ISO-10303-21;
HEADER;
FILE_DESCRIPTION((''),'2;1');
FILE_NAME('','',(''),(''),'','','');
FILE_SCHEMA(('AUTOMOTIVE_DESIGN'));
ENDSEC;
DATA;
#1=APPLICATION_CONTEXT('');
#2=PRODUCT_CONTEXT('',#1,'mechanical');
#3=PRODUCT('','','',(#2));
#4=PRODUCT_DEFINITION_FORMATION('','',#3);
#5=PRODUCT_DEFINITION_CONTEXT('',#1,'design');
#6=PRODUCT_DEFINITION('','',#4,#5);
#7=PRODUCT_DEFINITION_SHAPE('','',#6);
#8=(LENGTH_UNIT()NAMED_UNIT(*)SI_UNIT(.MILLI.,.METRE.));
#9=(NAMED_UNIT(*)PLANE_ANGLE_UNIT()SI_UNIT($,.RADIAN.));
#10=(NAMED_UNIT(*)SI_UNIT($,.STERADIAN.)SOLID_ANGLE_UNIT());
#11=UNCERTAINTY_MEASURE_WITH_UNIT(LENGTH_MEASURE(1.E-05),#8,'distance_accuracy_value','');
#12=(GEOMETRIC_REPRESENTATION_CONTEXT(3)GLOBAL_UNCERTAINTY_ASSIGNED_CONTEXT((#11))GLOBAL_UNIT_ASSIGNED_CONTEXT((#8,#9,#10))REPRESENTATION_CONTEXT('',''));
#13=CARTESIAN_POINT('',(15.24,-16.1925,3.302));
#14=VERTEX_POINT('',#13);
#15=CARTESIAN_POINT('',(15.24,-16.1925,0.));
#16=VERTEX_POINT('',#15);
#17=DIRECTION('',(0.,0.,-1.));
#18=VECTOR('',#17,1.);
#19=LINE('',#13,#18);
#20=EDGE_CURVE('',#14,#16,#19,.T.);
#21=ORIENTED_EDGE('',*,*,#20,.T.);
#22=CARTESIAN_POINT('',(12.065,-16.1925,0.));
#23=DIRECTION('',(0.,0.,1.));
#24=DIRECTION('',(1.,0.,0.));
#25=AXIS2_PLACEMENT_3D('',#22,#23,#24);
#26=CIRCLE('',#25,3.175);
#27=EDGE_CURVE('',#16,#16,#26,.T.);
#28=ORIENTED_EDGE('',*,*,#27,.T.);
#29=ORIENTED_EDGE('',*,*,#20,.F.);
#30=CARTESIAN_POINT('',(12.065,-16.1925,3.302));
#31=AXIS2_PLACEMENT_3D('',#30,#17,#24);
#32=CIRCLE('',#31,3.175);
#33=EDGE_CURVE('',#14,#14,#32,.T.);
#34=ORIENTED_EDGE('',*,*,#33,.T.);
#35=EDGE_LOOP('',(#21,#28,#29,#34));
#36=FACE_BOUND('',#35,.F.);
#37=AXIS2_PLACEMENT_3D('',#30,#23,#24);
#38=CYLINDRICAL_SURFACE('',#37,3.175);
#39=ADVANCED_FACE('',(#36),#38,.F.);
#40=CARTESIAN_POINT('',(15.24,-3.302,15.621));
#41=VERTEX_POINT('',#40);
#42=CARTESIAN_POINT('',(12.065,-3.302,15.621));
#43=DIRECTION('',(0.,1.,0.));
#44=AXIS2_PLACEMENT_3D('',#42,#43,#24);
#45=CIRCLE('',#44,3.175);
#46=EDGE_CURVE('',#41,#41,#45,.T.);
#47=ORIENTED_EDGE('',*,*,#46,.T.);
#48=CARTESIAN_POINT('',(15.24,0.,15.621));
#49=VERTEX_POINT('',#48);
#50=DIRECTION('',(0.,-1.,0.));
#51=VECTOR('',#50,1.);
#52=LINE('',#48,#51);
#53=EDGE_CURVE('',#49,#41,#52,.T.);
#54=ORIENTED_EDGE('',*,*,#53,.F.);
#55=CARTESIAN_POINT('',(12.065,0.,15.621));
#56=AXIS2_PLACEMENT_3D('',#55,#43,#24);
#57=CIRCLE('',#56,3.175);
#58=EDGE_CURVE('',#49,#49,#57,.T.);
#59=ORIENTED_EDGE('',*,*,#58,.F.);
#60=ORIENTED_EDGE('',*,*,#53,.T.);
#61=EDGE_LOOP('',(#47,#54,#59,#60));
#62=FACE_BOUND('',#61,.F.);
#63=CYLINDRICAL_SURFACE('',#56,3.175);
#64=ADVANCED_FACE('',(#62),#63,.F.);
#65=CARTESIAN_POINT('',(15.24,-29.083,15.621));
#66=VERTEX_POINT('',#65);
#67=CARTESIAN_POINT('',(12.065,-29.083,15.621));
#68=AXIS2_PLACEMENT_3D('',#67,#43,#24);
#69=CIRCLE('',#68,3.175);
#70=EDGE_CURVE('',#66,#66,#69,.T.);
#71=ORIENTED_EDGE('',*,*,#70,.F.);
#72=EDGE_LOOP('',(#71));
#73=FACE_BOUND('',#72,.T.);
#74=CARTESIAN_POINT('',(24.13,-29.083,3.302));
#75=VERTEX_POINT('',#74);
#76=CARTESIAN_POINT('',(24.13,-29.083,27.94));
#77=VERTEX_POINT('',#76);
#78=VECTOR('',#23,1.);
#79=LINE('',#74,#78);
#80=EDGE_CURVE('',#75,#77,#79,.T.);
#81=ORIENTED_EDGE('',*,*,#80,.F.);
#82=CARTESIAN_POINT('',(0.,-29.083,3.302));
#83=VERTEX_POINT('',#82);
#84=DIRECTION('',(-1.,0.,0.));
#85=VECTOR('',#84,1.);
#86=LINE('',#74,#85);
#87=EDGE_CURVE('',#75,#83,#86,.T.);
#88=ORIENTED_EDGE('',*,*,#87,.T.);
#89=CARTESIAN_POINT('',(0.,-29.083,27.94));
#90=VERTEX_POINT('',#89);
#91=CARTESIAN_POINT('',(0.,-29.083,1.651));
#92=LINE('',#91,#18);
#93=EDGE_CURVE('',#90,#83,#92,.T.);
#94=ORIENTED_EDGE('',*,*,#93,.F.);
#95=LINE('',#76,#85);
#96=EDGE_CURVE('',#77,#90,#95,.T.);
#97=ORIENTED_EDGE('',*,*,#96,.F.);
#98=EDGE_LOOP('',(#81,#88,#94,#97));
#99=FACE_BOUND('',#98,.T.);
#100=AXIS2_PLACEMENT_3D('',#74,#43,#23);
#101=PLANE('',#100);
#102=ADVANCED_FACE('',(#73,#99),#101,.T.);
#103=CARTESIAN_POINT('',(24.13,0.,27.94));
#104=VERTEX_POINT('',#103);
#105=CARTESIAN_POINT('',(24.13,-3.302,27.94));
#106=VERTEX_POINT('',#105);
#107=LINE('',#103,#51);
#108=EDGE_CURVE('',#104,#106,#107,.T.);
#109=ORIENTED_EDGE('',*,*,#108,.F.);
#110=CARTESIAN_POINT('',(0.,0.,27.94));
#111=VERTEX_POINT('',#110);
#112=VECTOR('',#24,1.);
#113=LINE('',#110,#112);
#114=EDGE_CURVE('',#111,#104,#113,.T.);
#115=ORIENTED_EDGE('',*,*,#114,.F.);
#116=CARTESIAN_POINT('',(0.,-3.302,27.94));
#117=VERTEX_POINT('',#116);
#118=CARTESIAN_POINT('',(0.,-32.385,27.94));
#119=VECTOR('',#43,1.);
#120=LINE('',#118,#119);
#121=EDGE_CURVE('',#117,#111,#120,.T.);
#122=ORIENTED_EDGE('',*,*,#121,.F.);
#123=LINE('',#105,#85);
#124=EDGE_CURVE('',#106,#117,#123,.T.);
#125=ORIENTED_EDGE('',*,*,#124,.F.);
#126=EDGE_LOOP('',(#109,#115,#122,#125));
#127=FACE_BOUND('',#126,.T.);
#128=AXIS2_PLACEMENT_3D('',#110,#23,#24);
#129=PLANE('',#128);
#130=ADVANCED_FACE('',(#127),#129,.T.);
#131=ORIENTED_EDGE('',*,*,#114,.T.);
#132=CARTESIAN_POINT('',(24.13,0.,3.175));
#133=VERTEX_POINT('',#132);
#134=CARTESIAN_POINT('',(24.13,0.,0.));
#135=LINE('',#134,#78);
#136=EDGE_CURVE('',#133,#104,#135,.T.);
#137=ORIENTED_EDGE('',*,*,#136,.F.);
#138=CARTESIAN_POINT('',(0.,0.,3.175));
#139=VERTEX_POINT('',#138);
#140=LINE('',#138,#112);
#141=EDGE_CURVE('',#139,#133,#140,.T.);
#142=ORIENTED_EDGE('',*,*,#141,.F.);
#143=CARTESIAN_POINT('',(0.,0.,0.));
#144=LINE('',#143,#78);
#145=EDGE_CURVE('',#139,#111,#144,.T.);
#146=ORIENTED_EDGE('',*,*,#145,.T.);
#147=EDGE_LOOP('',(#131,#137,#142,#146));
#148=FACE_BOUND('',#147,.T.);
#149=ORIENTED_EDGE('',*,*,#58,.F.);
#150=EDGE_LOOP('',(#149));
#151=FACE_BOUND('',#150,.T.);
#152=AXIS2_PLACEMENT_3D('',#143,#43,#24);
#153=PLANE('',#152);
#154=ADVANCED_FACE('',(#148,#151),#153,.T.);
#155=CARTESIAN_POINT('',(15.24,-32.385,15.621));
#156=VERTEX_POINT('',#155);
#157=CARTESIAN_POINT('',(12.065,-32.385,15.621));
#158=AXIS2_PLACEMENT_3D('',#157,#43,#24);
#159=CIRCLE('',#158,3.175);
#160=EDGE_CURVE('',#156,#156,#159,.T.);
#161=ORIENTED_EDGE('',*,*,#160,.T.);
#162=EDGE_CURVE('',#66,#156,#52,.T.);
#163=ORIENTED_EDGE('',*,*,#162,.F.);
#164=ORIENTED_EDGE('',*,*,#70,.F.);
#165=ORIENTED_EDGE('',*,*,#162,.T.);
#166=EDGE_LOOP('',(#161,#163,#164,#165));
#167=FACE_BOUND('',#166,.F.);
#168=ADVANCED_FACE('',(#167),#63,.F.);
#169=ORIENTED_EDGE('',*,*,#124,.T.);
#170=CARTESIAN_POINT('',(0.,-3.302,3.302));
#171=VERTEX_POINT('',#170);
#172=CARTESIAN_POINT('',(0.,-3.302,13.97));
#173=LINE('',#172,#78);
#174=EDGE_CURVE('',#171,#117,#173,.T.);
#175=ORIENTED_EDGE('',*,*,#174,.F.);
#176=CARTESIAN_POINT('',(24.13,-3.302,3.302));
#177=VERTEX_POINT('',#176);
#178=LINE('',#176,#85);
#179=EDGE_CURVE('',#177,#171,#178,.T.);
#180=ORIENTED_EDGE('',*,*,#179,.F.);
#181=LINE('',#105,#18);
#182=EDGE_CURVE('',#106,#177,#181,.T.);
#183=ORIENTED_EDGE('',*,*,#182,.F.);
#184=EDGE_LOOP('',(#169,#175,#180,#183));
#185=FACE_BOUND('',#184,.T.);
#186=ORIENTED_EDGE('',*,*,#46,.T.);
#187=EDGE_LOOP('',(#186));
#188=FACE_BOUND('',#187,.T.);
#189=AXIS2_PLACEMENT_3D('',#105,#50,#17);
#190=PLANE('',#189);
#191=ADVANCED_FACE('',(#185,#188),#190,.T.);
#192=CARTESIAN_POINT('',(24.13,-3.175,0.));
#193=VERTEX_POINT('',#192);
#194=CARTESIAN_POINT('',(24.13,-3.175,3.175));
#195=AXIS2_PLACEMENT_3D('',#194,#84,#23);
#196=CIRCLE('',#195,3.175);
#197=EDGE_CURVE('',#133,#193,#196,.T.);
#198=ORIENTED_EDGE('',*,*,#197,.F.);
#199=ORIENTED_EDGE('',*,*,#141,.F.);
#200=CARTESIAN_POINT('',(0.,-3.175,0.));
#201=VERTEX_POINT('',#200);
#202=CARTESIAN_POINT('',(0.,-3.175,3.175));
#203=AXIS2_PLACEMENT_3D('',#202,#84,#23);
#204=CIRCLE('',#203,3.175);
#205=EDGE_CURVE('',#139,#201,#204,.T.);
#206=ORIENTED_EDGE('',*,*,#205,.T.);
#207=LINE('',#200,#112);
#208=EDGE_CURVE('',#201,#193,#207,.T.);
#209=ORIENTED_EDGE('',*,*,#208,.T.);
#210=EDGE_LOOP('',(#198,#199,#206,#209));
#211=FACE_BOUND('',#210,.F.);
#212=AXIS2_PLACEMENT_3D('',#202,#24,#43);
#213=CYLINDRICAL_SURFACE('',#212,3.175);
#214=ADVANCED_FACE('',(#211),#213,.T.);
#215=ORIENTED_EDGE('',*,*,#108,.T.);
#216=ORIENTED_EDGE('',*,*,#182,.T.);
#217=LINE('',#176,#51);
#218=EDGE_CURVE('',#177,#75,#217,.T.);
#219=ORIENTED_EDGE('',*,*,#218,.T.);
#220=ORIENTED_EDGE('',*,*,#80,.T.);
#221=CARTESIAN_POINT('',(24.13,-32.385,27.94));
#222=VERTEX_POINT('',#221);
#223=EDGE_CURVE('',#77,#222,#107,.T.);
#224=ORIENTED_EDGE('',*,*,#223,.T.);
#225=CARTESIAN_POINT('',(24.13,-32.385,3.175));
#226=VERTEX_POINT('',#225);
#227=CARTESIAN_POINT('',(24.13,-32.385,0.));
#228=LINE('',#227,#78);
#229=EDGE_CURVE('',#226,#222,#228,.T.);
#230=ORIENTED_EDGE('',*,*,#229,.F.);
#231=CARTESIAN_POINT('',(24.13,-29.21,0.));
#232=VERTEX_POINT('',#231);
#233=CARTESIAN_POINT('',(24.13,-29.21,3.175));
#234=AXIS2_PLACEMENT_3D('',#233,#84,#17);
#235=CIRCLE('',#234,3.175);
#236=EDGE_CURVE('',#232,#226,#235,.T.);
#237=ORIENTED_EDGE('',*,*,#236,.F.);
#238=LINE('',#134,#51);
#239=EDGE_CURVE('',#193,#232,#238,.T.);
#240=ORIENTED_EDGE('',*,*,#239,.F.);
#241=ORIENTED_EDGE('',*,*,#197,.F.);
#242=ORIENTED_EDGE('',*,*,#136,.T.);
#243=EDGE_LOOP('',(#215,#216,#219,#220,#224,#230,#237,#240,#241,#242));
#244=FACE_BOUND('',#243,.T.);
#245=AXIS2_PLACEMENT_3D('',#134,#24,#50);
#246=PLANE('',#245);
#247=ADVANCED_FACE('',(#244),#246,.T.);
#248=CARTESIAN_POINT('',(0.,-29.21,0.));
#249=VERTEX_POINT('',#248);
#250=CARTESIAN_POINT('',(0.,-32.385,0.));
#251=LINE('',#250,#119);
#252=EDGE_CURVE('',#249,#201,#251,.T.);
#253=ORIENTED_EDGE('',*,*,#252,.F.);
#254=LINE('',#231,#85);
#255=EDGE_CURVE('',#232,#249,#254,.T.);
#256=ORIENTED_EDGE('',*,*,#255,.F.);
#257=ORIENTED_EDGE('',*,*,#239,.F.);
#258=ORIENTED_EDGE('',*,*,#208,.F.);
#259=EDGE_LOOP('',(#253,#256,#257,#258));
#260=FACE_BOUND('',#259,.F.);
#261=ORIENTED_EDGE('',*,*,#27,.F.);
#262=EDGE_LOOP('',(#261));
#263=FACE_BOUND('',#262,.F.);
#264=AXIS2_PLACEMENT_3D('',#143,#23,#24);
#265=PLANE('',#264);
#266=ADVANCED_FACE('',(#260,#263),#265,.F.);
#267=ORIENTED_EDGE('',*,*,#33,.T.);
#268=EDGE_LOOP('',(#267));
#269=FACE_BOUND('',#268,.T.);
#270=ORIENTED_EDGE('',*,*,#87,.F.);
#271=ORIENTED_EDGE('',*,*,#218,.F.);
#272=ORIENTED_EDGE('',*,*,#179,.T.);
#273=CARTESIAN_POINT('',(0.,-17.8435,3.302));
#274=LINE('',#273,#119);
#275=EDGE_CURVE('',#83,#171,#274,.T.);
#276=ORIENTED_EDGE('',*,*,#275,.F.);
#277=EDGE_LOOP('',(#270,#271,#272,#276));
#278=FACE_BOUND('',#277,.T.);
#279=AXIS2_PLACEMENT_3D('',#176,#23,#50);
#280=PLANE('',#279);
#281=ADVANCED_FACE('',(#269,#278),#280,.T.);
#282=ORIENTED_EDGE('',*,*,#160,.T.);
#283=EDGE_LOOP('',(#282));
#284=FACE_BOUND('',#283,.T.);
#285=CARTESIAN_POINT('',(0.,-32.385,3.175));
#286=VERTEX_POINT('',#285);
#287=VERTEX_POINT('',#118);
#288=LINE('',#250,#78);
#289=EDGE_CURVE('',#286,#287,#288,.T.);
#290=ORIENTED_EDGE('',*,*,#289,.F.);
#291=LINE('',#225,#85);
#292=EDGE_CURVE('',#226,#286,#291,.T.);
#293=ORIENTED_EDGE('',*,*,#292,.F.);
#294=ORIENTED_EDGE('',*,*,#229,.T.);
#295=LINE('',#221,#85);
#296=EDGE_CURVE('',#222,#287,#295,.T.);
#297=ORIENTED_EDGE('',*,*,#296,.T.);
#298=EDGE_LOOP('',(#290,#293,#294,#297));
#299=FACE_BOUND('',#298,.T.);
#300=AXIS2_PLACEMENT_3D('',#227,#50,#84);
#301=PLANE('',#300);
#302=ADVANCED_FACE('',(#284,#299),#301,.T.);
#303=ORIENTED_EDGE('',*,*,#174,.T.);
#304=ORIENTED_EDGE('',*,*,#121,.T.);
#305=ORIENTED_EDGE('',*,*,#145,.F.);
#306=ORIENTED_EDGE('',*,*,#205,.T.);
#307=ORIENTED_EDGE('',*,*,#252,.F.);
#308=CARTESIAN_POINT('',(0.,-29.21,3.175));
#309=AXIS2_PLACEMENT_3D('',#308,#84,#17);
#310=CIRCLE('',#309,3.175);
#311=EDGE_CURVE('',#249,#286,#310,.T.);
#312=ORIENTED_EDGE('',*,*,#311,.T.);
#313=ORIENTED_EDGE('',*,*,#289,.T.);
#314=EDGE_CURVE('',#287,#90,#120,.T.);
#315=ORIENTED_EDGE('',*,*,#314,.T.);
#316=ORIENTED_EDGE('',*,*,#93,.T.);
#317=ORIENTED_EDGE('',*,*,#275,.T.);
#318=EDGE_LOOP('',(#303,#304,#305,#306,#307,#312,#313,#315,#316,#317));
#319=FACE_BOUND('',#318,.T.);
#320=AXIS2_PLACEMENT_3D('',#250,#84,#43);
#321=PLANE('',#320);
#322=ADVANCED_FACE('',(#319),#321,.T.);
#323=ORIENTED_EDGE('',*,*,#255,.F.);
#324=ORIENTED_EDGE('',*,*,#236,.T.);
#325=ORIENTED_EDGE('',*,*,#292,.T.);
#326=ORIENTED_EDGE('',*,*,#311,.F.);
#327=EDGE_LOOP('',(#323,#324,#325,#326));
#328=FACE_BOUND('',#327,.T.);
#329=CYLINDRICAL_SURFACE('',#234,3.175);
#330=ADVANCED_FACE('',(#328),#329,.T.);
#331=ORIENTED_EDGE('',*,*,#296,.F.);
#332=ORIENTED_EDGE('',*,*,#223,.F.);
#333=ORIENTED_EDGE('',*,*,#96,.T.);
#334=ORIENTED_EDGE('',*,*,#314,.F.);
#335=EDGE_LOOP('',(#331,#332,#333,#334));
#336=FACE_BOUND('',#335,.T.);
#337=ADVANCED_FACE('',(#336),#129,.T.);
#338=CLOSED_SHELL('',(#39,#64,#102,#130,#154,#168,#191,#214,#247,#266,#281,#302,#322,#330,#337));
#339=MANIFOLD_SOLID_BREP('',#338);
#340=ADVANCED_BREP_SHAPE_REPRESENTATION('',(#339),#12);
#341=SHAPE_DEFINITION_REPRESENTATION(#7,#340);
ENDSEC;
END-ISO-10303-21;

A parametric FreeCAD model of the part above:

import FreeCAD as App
import Part
import Sketcher
from FreeCAD import Vector
Q = App.Units.Quantity


def edges_at(feature, points):
    """Names of the edges that pass closest to the given points."""
    edges = feature.Shape.Edges
    near = lambda p: min(range(len(edges)), key=lambda i: edges[i].distToShape(Part.Vertex(*p))[0])
    return sorted({f"Edge{near(p) + 1}" for p in points})

doc = App.newDocument("Part")
params = doc.addObject("Spreadsheet::Sheet", "Params")
for row, (alias, value) in enumerate([
    ("sketch1_width", "0.95 in"),
    ("sketch1_height", "1.275 in"),
    ("pad1_length", "1.1 in"),
    ("sketch2_height", "0.97 in"),
    ("sketch2_width", "1.015 in"),
    ("pocket1_length", "1.375 in"),
    ("sketch3_diameter", "0.25 in"),
    ("pocket2_length", "1.375 in"),
    ("fillet_radius", "0.125 in"),
    ("sketch4_diameter", "0.25 in"),
    ("pocket3_length", "1.375 in"),
], start=1):
    params.set(f"A{row}", alias)
    params.set(f"B{row}", "=" + value)
    params.setAlias(f"B{row}", alias)

body = doc.addObject("PartDesign::Body", "Body")

# Sketch on XY plane
sketch1 = body.newObject("Sketcher::SketchObject", "Sketch")
sketch1.AttachmentSupport = (doc.getObject("XY_Plane"), [""])
sketch1.MapMode = "FlatFace"
sketch1.addGeometry([
    Part.LineSegment(Vector(24, 0, 0), Vector(0, 0, 0)),
    Part.LineSegment(Vector(0, 0, 0), Vector(0, -32, 0)),
    Part.LineSegment(Vector(0, -32, 0), Vector(24, -32, 0)),
    Part.LineSegment(Vector(24, -32, 0), Vector(24, 0, 0)),
], False)
sketch1.addConstraint([
    Sketcher.Constraint("Coincident", 0, 2, 1, 1),
    Sketcher.Constraint("Coincident", 1, 2, 2, 1),
    Sketcher.Constraint("Coincident", 2, 2, 3, 1),
    Sketcher.Constraint("Coincident", 3, 2, 0, 1),
    Sketcher.Constraint("Horizontal", 0),
    Sketcher.Constraint("Vertical", 1),
    Sketcher.Constraint("Horizontal", 2),
    Sketcher.Constraint("Vertical", 3),
    Sketcher.Constraint("Coincident", 0, 2, -1, 1),
    Sketcher.Constraint("DistanceX", 0, 2, 0, 1, Q("0.95 in")),
    Sketcher.Constraint("DistanceY", 1, 2, 1, 1, Q("1.275 in")),
])
sketch1.setExpression("Constraints[9]", "Params.sketch1_width")
sketch1.setExpression("Constraints[10]", "Params.sketch1_height")
pad1 = body.newObject("PartDesign::Pad", "Pad")
pad1.Profile = sketch1
pad1.setExpression("Length", "Params.pad1_length")

# Sketch on YZ plane
sketch2 = body.newObject("Sketcher::SketchObject", "Sketch001")
sketch2.AttachmentSupport = (doc.getObject("YZ_Plane"), [""])
sketch2.MapMode = "FlatFace"
sketch2.AttachmentOffset = App.Placement(Vector(0, 0, 0.95 * 25.4), App.Rotation())
sketch2.addGeometry([
    Part.LineSegment(Vector(-3, 3, 0), Vector(-3, 28, 0)),
    Part.LineSegment(Vector(-3, 28, 0), Vector(-29, 28, 0)),
    Part.LineSegment(Vector(-29, 28, 0), Vector(-29, 3, 0)),
    Part.LineSegment(Vector(-29, 3, 0), Vector(-3, 3, 0)),
], False)
sketch2.addConstraint([
    Sketcher.Constraint("Coincident", 0, 2, 1, 1),
    Sketcher.Constraint("Coincident", 1, 2, 2, 1),
    Sketcher.Constraint("Coincident", 2, 2, 3, 1),
    Sketcher.Constraint("Coincident", 3, 2, 0, 1),
    Sketcher.Constraint("Vertical", 0),
    Sketcher.Constraint("Horizontal", 1),
    Sketcher.Constraint("Vertical", 2),
    Sketcher.Constraint("Horizontal", 3),
    Sketcher.Constraint("DistanceX", 0, 2, -1, 1, Q("0.13 in")),
    Sketcher.Constraint("DistanceY", -1, 1, 2, 2, Q("0.13 in")),
    Sketcher.Constraint("DistanceY", 0, 1, 0, 2, Q("0.97 in")),
    Sketcher.Constraint("DistanceX", 1, 2, 1, 1, Q("1.015 in")),
])
sketch2.setExpression("Constraints[10]", "Params.sketch2_height")
sketch2.setExpression("Constraints[11]", "Params.sketch2_width")
pocket1 = body.newObject("PartDesign::Pocket", "Pocket")
pocket1.Profile = sketch2
pocket1.setExpression("Length", "Params.pocket1_length")

# Sketch on XY plane
sketch3 = body.newObject("Sketcher::SketchObject", "Sketch002")
sketch3.AttachmentSupport = (doc.getObject("XY_Plane"), [""])
sketch3.MapMode = "FlatFace"
sketch3.AttachmentOffset = App.Placement(Vector(0, 0, 0.13 * 25.4), App.Rotation())
sketch3.addGeometry(Part.Circle(Vector(12.1, -16.2, 0), Vector(0, 0, 1), 3.2), False)
sketch3.addConstraint([
    Sketcher.Constraint("Diameter", 0, Q("0.25 in")),
    Sketcher.Constraint("DistanceX", -1, 1, 0, 3, Q("0.475 in")),
    Sketcher.Constraint("DistanceY", 0, 3, -1, 1, Q("0.6375 in")),
])
sketch3.setExpression("Constraints[0]", "Params.sketch3_diameter")
pocket2 = body.newObject("PartDesign::Pocket", "Pocket001")
pocket2.Profile = sketch3
pocket2.setExpression("Length", "Params.pocket2_length")
doc.recompute()

fillet = body.newObject("PartDesign::Fillet", "Fillet")
fillet.Base = (pocket2, edges_at(pocket2, [(12.065, 0, 0), (12.065, -32.385, 0)]))
fillet.setExpression("Radius", "Params.fillet_radius")

# Sketch on XZ plane
sketch4 = body.newObject("Sketcher::SketchObject", "Sketch003")
sketch4.AttachmentSupport = (doc.getObject("XZ_Plane"), [""])
sketch4.MapMode = "FlatFace"
sketch4.addGeometry(Part.Circle(Vector(12.1, 15.6, 0), Vector(0, 0, 1), 3.2), False)
sketch4.addConstraint([
    Sketcher.Constraint("Diameter", 0, Q("0.25 in")),
    Sketcher.Constraint("DistanceX", -1, 1, 0, 3, Q("0.475 in")),
    Sketcher.Constraint("DistanceY", -1, 1, 0, 3, Q("0.615 in")),
])
sketch4.setExpression("Constraints[0]", "Params.sketch4_diameter")
pocket3 = body.newObject("PartDesign::Pocket", "Pocket002")
pocket3.Profile = sketch4
pocket3.setExpression("Length", "Params.pocket3_length")
pocket3.Reversed = True

doc.recompute()
